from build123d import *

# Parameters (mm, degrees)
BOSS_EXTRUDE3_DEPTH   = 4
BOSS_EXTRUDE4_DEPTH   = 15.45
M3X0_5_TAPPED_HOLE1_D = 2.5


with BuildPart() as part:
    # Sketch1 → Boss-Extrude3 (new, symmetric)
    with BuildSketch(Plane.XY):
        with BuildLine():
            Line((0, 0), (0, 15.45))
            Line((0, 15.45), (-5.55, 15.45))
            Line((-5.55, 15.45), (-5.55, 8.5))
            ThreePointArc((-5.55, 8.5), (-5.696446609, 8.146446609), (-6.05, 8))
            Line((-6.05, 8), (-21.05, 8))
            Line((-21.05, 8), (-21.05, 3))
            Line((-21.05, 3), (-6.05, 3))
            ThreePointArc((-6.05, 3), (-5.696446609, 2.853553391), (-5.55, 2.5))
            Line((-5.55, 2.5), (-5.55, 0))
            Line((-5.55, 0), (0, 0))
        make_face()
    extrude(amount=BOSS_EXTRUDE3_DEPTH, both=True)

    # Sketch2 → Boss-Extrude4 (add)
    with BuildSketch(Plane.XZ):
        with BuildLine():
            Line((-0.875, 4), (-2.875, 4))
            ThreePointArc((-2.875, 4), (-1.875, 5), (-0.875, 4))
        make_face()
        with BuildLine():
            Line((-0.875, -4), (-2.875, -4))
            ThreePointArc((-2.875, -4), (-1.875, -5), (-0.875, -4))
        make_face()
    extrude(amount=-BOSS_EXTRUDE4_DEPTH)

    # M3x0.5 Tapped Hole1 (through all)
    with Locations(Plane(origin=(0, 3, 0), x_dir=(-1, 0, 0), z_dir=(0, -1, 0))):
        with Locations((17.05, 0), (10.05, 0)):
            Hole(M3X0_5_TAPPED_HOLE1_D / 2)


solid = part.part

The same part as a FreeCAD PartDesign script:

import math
import FreeCAD as App
import Part
import Sketcher

V = App.Vector

doc = App.newDocument("Part")
params = doc.addObject("Spreadsheet::Sheet", "Params")
for row, (alias, value) in enumerate([
    ("sketch1_radius", "0.5 mm"),
    ("sketch1_width", "15 mm"),
    ("sketch1_height", "5 mm"),
    ("sketch1_height2", "2.5 mm"),
    ("sketch1_width2", "5.55 mm"),
    ("pad1_length", "8 mm"),
    ("sketch2_radius", "1 mm"),
    ("pad2_length", "15.45 mm"),
    ("sketch3_diameter", "2.5 mm"),
    ("hole_diameter", "2.5 mm"),
], start=1):
    params.set(f"A{row}", alias)
    params.set(f"B{row}", "=" + value)
    params.setAlias(f"B{row}", alias)

body = doc.addObject("PartDesign::Body", "Body")

# Sketch on XY plane
sketch1 = body.newObject("Sketcher::SketchObject", "Sketch")
sketch1.AttachmentSupport = (doc.getObject("XY_Plane"), [""])
sketch1.MapMode = "FlatFace"
sketch1.addGeometry([
    Part.LineSegment(V(0, 0, 0), V(0, 15.45, 0)),  # 0
    Part.LineSegment(V(0, 15.45, 0), V(-5.55, 15.45, 0)),  # 1
    Part.LineSegment(V(-5.55, 15.45, 0), V(-5.55, 8.5, 0)),  # 2
    Part.ArcOfCircle(Part.Circle(V(-6.05, 8.5, 0), V(0, 0, 1), 0.5), math.radians(-90), math.radians(0)),  # 3
    Part.LineSegment(V(-6.05, 8, 0), V(-21.05, 8, 0)),  # 4
    Part.LineSegment(V(-21.05, 8, 0), V(-21.05, 3, 0)),  # 5
    Part.LineSegment(V(-21.05, 3, 0), V(-6.05, 3, 0)),  # 6
    Part.ArcOfCircle(Part.Circle(V(-6.05, 2.5, 0), V(0, 0, 1), 0.5), math.radians(0), math.radians(90)),  # 7
    Part.LineSegment(V(-5.55, 2.5, 0), V(-5.55, 0, 0)),  # 8
    Part.LineSegment(V(-5.55, 0, 0), V(0, 0, 0)),  # 9
], False)
sketch1.addConstraint([
    Sketcher.Constraint("Coincident", 0, 2, 1, 1),
    Sketcher.Constraint("Coincident", 1, 2, 2, 1),
    Sketcher.Constraint("Tangent", 2, 2, 3, 2),
    Sketcher.Constraint("Tangent", 3, 1, 4, 1),
    Sketcher.Constraint("Coincident", 4, 2, 5, 1),
    Sketcher.Constraint("Coincident", 5, 2, 6, 1),
    Sketcher.Constraint("Tangent", 6, 2, 7, 2),
    Sketcher.Constraint("Tangent", 7, 1, 8, 1),
    Sketcher.Constraint("Coincident", 8, 2, 9, 1),
    Sketcher.Constraint("Coincident", 9, 2, 0, 1),
    Sketcher.Constraint("Vertical", 0),
    Sketcher.Constraint("Horizontal", 1),
    Sketcher.Constraint("Vertical", 2),
    Sketcher.Constraint("Horizontal", 4),
    Sketcher.Constraint("Vertical", 5),
    Sketcher.Constraint("Horizontal", 6),
    Sketcher.Constraint("Vertical", 8),
    Sketcher.Constraint("Horizontal", 9),
    Sketcher.Constraint("Coincident", 9, 2, -1, 1),
    Sketcher.Constraint("Equal", 3, 7),
    Sketcher.Constraint("Vertical", 3, 3, 7, 3),
    Sketcher.Constraint("Radius", 3, 0.5),
    Sketcher.Constraint("DistanceX", 4, 2, 4, 1, 15.0),
    Sketcher.Constraint("DistanceY", 5, 2, 5, 1, 5.0),
    Sketcher.Constraint("DistanceY", 8, 2, 8, 1, 2.5),
    Sketcher.Constraint("DistanceX", 1, 2, 1, 1, 5.55),
    Sketcher.Constraint("DistanceY", 0, 1, 0, 2, 15.45),
])
sketch1.setExpression("Constraints[21]", "Params.sketch1_radius")
sketch1.setExpression("Constraints[22]", "Params.sketch1_width")
sketch1.setExpression("Constraints[23]", "Params.sketch1_height")
sketch1.setExpression("Constraints[24]", "Params.sketch1_height2")
sketch1.setExpression("Constraints[25]", "Params.sketch1_width2")
pad1 = body.newObject("PartDesign::Pad", "Pad")
pad1.Profile = sketch1
pad1.setExpression("Length", "Params.pad1_length")
pad1.Midplane = True

# Sketch on XZ plane
sketch2 = body.newObject("Sketcher::SketchObject", "Sketch001")
sketch2.AttachmentSupport = (doc.getObject("XZ_Plane"), [""])
sketch2.MapMode = "FlatFace"
sketch2.addGeometry([
    Part.LineSegment(V(-2.875, 4, 0), V(-0.875, 4, 0)),
    Part.ArcOfCircle(Part.Circle(V(-1.875, 4, 0), V(0, 0, 1), 1), math.radians(0), math.radians(180)),
    Part.LineSegment(V(-0.875, -4, 0), V(-2.875, -4, 0)),
    Part.ArcOfCircle(Part.Circle(V(-1.875, -4, 0), V(0, 0, 1), 1), math.radians(180), math.radians(360)),
], False)
sketch2.addConstraint([
    Sketcher.Constraint("Coincident", 0, 1, 1, 2),
    Sketcher.Constraint("Coincident", 1, 1, 0, 2),
    Sketcher.Constraint("Coincident", 2, 1, 3, 2),
    Sketcher.Constraint("Coincident", 3, 1, 2, 2),
    Sketcher.Constraint("Horizontal", 0),
    Sketcher.Constraint("Horizontal", 2),
    Sketcher.Constraint("Equal", 1, 3),
    Sketcher.Constraint("Symmetric", 1, 3, 3, 3, -1),
    Sketcher.Constraint("Horizontal", 1, 3, 0, 1),
    Sketcher.Constraint("Horizontal", 3, 3, 2, 1),
    Sketcher.Constraint("Radius", 1, 1.0),
    Sketcher.Constraint("DistanceY", -1, 1, 1, 3, 4.0),
    Sketcher.Constraint("DistanceX", 1, 3, -1, 1, 1.875),
])
sketch2.setExpression("Constraints[10]", "Params.sketch2_radius")
pad2 = body.newObject("PartDesign::Pad", "Pad001")
pad2.Profile = sketch2
pad2.setExpression("Length", "Params.pad2_length")
pad2.Reversed = True

# Sketch on XZ plane
sketch3 = body.newObject("Sketcher::SketchObject", "Sketch002")
sketch3.AttachmentSupport = (doc.getObject("XZ_Plane"), [""])
sketch3.MapMode = "FlatFace"
sketch3.AttachmentOffset = App.Placement(V(0, 0, -3), App.Rotation())
sketch3.addGeometry([
    Part.Circle(V(-17.05, 0, 0), V(0, 0, 1), 1.25),
    Part.Circle(V(-10.05, 0, 0), V(0, 0, 1), 1.25),
], False)
sketch3.addConstraint([
    Sketcher.Constraint("Equal", 0, 1),
    Sketcher.Constraint("PointOnObject", 0, 3, -1),
    Sketcher.Constraint("PointOnObject", 1, 3, -1),
    Sketcher.Constraint("Diameter", 0, 2.5),
    Sketcher.Constraint("DistanceX", 0, 3, 1, 3, 7.0),
    Sketcher.Constraint("DistanceX", 0, 3, -1, 1, 17.05),
])
sketch3.setExpression("Constraints[3]", "Params.sketch3_diameter")
doc.recompute()
hole = body.newObject("PartDesign::Hole", "Hole")
hole.Profile = sketch3
hole.ThreadType = "None"
hole.setExpression("Diameter", "Params.hole_diameter")
hole.DepthType = "ThroughAll"

doc.recompute()
